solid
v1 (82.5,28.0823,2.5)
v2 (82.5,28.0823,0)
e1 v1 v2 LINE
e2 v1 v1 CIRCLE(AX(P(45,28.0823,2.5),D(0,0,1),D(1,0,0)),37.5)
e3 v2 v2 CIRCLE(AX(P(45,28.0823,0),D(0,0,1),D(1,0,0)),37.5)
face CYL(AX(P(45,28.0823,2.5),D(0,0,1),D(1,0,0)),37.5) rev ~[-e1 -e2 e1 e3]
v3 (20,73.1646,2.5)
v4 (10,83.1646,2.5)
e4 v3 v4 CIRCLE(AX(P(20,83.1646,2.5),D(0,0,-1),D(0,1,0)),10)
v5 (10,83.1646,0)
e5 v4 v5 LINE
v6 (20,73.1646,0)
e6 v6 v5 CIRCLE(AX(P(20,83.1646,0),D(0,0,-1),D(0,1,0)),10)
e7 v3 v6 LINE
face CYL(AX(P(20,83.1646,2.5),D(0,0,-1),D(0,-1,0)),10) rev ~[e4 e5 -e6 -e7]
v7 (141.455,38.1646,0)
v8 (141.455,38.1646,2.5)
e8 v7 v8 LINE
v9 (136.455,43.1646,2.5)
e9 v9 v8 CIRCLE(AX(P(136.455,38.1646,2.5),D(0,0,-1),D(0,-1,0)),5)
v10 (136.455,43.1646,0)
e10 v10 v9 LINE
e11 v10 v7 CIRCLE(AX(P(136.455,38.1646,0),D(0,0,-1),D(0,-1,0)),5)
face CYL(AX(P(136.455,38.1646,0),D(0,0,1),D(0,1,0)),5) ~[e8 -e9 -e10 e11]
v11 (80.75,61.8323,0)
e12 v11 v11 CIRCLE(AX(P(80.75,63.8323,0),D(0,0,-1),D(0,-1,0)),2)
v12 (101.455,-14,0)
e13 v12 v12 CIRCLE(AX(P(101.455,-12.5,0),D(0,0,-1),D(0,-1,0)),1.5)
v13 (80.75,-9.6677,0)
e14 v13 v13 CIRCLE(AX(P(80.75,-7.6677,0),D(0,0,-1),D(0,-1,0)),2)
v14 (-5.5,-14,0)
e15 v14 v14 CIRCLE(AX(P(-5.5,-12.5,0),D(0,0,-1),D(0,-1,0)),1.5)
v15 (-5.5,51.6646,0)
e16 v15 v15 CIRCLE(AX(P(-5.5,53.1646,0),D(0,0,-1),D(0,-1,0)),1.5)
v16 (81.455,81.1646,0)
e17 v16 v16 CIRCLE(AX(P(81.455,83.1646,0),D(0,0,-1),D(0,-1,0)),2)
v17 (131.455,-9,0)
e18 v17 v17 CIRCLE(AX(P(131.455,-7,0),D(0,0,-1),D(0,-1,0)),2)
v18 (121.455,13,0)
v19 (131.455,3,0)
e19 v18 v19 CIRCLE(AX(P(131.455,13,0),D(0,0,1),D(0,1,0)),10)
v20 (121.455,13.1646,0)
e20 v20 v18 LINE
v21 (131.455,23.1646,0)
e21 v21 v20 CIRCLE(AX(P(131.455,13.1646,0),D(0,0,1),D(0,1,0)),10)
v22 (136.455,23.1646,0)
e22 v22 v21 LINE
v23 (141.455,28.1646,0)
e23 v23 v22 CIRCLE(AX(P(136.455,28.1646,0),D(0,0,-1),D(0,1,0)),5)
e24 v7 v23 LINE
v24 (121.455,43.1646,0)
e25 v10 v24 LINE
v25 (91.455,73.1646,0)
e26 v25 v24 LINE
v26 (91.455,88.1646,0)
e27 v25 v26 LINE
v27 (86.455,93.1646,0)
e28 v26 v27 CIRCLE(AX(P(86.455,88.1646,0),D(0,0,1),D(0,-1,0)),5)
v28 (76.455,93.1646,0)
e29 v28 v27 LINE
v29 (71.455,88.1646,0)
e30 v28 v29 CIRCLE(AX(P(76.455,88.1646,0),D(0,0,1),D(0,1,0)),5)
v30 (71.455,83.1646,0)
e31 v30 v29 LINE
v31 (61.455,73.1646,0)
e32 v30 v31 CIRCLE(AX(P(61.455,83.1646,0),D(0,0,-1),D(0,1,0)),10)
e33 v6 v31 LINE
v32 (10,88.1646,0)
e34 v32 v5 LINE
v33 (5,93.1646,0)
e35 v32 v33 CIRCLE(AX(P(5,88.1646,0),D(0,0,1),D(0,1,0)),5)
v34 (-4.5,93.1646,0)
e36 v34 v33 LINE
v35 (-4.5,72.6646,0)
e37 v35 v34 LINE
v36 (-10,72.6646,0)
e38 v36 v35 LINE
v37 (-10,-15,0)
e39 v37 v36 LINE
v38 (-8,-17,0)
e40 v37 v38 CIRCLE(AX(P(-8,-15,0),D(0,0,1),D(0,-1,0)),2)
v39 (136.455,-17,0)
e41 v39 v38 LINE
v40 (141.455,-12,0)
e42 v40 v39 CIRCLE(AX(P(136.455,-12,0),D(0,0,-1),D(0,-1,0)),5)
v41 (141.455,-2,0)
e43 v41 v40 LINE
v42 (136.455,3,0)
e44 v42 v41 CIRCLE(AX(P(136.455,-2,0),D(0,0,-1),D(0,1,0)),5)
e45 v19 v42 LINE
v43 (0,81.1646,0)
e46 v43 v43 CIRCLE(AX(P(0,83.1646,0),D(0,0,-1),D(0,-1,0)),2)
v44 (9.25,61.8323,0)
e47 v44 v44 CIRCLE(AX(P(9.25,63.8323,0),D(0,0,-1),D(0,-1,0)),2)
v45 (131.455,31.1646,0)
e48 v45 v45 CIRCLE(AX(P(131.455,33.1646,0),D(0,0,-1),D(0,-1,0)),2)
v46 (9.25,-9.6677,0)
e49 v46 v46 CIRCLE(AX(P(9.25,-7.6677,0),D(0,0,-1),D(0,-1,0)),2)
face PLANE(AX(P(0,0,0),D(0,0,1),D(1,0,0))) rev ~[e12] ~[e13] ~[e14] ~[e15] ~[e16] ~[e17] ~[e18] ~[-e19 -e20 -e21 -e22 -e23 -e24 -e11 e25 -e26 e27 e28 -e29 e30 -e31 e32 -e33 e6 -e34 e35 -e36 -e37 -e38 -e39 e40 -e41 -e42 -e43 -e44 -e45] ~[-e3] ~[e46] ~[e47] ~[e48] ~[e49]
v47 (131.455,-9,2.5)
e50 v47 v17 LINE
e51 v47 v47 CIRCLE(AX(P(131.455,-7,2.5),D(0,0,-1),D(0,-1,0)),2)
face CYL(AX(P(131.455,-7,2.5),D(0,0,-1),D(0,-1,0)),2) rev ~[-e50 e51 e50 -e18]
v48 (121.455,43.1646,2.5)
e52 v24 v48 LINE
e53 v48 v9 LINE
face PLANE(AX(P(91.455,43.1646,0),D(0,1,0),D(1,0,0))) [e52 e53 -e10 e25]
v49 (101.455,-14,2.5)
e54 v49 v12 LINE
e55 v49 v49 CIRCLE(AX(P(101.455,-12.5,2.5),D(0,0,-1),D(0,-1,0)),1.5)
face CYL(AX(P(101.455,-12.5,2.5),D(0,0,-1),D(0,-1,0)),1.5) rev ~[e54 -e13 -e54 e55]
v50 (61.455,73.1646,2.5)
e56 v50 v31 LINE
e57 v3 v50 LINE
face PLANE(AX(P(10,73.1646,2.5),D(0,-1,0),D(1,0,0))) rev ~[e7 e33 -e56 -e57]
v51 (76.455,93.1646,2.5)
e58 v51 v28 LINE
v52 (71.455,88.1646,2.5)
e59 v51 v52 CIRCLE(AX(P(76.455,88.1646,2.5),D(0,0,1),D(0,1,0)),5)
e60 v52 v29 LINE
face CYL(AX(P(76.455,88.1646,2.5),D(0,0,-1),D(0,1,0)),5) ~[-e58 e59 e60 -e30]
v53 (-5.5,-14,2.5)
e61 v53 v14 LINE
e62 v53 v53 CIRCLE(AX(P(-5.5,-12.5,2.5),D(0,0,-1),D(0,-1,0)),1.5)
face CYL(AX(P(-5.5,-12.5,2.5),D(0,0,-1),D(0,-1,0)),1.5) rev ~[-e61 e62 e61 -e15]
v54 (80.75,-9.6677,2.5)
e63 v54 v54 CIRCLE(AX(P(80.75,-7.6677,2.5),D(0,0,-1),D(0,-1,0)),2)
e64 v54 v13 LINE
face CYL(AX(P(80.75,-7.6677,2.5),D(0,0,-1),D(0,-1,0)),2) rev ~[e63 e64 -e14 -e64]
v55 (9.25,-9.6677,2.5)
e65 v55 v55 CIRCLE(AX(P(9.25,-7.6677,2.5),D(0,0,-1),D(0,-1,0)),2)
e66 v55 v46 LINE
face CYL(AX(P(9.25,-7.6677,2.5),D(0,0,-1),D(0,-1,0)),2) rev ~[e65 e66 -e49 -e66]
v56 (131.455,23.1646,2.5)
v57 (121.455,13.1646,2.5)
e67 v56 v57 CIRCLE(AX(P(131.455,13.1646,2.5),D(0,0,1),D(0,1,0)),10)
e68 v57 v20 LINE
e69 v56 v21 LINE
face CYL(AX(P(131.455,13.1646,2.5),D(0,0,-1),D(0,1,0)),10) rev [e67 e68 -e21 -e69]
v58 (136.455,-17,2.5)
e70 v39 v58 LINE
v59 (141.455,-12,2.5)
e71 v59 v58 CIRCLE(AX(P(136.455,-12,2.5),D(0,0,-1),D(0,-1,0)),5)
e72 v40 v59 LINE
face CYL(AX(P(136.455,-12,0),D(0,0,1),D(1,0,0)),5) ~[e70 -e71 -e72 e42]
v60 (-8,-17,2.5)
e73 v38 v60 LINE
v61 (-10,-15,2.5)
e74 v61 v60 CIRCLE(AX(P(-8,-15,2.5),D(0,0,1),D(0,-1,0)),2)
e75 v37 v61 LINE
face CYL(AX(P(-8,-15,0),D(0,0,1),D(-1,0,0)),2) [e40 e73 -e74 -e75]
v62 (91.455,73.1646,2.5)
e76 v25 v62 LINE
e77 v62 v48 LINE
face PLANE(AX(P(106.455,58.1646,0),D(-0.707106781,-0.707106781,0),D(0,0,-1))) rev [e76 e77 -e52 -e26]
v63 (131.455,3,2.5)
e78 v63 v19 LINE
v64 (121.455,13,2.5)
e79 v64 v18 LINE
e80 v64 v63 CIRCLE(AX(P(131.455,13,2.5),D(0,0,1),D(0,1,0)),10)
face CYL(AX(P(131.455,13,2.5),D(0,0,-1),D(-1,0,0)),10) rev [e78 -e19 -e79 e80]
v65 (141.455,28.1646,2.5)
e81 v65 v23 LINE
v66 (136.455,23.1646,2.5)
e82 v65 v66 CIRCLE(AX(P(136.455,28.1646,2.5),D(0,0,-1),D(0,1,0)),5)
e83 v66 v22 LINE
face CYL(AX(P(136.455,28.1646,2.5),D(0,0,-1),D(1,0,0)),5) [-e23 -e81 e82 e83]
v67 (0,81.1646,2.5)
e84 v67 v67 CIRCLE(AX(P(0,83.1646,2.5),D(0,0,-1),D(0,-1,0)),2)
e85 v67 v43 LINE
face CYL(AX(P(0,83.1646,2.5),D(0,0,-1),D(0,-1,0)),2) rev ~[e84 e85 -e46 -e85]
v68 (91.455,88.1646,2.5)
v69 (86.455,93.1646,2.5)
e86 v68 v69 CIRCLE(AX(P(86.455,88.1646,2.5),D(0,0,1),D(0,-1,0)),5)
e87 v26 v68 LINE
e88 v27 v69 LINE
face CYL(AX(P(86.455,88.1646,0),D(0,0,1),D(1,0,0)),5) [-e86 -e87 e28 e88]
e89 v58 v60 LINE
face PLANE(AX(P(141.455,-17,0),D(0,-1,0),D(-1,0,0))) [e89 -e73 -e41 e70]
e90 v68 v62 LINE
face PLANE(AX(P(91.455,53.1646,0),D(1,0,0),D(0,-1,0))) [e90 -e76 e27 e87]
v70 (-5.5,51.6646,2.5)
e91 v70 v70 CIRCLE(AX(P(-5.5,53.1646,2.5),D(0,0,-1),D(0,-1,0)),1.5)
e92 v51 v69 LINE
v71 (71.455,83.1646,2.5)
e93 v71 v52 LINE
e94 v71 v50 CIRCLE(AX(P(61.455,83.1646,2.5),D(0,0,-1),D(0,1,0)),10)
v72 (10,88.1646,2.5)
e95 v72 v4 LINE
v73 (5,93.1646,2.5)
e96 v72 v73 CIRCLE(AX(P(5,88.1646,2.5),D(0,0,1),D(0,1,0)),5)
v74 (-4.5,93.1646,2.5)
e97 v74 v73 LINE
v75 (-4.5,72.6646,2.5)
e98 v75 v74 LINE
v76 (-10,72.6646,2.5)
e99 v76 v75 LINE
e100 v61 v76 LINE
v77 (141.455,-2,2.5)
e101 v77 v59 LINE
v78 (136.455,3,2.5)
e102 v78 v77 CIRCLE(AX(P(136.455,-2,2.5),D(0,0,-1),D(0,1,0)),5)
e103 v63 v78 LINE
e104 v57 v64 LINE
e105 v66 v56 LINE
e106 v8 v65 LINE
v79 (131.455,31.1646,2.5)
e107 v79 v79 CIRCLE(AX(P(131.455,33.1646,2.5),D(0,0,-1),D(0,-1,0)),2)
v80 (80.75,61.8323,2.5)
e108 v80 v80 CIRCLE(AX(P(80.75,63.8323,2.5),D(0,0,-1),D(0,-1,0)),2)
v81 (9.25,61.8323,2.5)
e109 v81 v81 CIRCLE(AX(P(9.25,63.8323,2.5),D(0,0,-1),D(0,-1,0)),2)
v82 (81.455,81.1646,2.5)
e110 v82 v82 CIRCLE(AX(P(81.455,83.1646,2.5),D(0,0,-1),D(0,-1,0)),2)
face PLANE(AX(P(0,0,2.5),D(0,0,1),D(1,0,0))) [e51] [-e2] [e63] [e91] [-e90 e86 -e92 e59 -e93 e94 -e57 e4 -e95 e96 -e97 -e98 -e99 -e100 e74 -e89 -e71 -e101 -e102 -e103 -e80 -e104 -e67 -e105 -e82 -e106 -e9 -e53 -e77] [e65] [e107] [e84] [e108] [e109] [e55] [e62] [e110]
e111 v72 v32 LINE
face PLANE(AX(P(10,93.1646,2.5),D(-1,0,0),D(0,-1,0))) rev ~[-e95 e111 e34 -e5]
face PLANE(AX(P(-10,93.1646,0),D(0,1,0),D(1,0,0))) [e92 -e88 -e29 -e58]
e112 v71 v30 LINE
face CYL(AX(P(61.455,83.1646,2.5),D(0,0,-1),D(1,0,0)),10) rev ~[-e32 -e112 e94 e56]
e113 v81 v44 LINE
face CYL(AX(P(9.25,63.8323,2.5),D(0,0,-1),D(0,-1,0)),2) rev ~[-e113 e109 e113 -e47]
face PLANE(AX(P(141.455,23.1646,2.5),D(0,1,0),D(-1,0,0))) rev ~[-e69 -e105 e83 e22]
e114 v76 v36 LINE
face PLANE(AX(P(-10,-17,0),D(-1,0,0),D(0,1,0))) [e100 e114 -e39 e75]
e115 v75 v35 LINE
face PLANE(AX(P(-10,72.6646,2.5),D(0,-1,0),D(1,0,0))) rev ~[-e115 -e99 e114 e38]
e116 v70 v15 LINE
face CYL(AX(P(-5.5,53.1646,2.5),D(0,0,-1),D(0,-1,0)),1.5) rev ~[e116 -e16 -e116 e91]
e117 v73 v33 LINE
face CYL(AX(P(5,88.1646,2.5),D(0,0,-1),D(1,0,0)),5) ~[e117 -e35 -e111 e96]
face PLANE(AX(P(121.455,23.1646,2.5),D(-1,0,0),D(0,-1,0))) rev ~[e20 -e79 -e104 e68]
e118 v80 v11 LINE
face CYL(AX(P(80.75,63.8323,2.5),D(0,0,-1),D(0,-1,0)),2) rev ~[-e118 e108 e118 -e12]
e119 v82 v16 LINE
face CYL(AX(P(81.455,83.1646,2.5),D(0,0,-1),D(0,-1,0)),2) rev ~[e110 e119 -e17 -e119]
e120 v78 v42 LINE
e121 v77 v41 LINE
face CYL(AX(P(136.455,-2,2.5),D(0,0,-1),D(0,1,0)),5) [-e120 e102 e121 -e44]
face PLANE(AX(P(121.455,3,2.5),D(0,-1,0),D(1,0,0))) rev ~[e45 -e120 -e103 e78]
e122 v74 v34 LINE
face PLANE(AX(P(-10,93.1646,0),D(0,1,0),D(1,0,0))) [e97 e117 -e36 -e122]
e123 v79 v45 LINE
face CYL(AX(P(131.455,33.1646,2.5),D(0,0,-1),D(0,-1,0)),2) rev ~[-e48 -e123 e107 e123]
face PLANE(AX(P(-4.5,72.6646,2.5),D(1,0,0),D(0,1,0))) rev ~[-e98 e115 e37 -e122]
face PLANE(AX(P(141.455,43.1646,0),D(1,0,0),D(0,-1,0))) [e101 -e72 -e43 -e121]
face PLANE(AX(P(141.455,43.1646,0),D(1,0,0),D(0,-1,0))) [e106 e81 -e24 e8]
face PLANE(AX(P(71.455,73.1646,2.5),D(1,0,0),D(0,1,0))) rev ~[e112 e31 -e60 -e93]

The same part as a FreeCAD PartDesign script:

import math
import FreeCAD as App
import Part
import Sketcher

V = App.Vector
Q = App.Units.Quantity


def edges_at(feature, points):
    """Names of the edges that pass closest to the given points."""
    edges = feature.Shape.Edges
    near = lambda p: min(range(len(edges)), key=lambda i: edges[i].distToShape(Part.Vertex(*p))[0])
    return sorted({f"Edge{near(p) + 1}" for p in points})

doc = App.newDocument("Part")
body = doc.addObject("PartDesign::Body", "Body")

sketch1 = body.newObject("Sketcher::SketchObject", "Sketch")
sketch1.AttachmentSupport = (doc.getObject("XY_Plane"), [""])
sketch1.MapMode = "FlatFace"
sketch1.addGeometry(Part.LineSegment(V(91, 43, 0), V(91, 93, 0)), False)
sketch1.addGeometry(Part.LineSegment(V(91, 93, 0), V(-10, 93, 0)), False)
sketch1.addGeometry(Part.LineSegment(V(-10, 93, 0), V(-10, -17, 0)), False)
sketch1.addGeometry(Part.LineSegment(V(-10, -17, 0), V(141, -17, 0)), False)
sketch1.addGeometry(Part.LineSegment(V(141, -17, 0), V(141, 43, 0)), False)
sketch1.addGeometry(Part.LineSegment(V(141, 43, 0), V(91, 43, 0)), False)
sketch1.addConstraint(Sketcher.Constraint("Coincident", 0, 2, 1, 1))
sketch1.addConstraint(Sketcher.Constraint("Coincident", 1, 2, 2, 1))
sketch1.addConstraint(Sketcher.Constraint("Coincident", 2, 2, 3, 1))
sketch1.addConstraint(Sketcher.Constraint("Coincident", 3, 2, 4, 1))
sketch1.addConstraint(Sketcher.Constraint("Coincident", 4, 2, 5, 1))
sketch1.addConstraint(Sketcher.Constraint("Coincident", 5, 2, 0, 1))
sketch1.addConstraint(Sketcher.Constraint("Vertical", 0))
sketch1.addConstraint(Sketcher.Constraint("Horizontal", 1))
sketch1.addConstraint(Sketcher.Constraint("Vertical", 2))
sketch1.addConstraint(Sketcher.Constraint("Horizontal", 3))
sketch1.addConstraint(Sketcher.Constraint("Vertical", 4))
sketch1.addConstraint(Sketcher.Constraint("Horizontal", 5))
sketch1.addConstraint(Sketcher.Constraint("Equal", 5, 0))
sketch1.addConstraint(Sketcher.Constraint("DistanceX", 5, 2, 5, 1, Q("50 mm")))
sketch1.addConstraint(Sketcher.Constraint("DistanceX", 1, 2, -1, 1, Q("10 mm")))
sketch1.addConstraint(Sketcher.Constraint("DistanceY", 2, 2, -1, 1, Q("17 mm")))
sketch1.addConstraint(Sketcher.Constraint("DistanceX", 1, 2, 1, 1, Q("101.455 mm")))
sketch1.addConstraint(Sketcher.Constraint("DistanceY", 2, 2, 2, 1, Q("110.1646 mm")))
pad1 = body.newObject("PartDesign::Pad", "Pad")
pad1.Profile = sketch1
pad1.Length = 2.5
doc.recompute()

fillet = body.newObject("PartDesign::Fillet", "Fillet")
fillet.Base = (pad1, edges_at(pad1, [
    (-10, 93.165, 1.25),
    (91.455, 93.165, 1.25),
    (141.455, 43.165, 1.25),
    (141.455, -17, 1.25),
]))
fillet.Radius = 5

sketch2 = body.newObject("Sketcher::SketchObject", "Sketch001")
sketch2.AttachmentSupport = (doc.getObject("XY_Plane"), [""])
sketch2.MapMode = "FlatFace"
sketch2.AttachmentOffset = App.Placement(V(0, 0, 2.5), App.Rotation())
sketch2.addGeometry(Part.Circle(V(131.5, -7, 0), V(0, 0, 1), 2), False)
sketch2.addGeometry(Part.Circle(V(131.5, 33.2, 0), V(0, 0, 1), 2), False)
sketch2.addGeometry(Part.Circle(V(81.5, 83.2, 0), V(0, 0, 1), 2), False)
sketch2.addGeometry(Part.Circle(V(0, 83.2, 0), V(0, 0, 1), 2), False)
sketch2.addConstraint(Sketcher.Constraint("Equal", 0, 1))
sketch2.addConstraint(Sketcher.Constraint("Equal", 1, 2))
sketch2.addConstraint(Sketcher.Constraint("Equal", 2, 3))
sketch2.addConstraint(Sketcher.Constraint("PointOnObject", 3, 3, -2))
sketch2.addConstraint(Sketcher.Constraint("Horizontal", 2, 3, 3, 3))
sketch2.addConstraint(Sketcher.Constraint("Vertical", 0, 3, 1, 3))
sketch2.addConstraint(Sketcher.Constraint("Diameter", 0, Q("4 mm")))
sketch2.addConstraint(Sketcher.Constraint("DistanceY", 0, 3, -1, 1, Q("7 mm")))
sketch2.addConstraint(Sketcher.Constraint("DistanceX", 2, 3, 1, 3, Q("50 mm")))
sketch2.addConstraint(Sketcher.Constraint("DistanceY", 1, 3, 2, 3, Q("50 mm")))
sketch2.addConstraint(Sketcher.Constraint("DistanceX", -1, 1, 0, 3, Q("131.455 mm")))
sketch2.addConstraint(Sketcher.Constraint("DistanceY", -1, 1, 1, 3, Q("33.1646 mm")))
doc.recompute()
hole = body.newObject("PartDesign::Hole", "Hole")
hole.Profile = sketch2
hole.ThreadType = "None"
hole.Diameter = 4
hole.DepthType = "ThroughAll"
doc.recompute()

fillet2 = body.newObject("PartDesign::Fillet", "Fillet001")
fillet2.Base = (hole, edges_at(hole, [(-10, -17, 1.25)]))
fillet2.Radius = 2

sketch3 = body.newObject("Sketcher::SketchObject", "Sketch002")
sketch3.AttachmentSupport = (doc.getObject("XY_Plane"), [""])
sketch3.MapMode = "FlatFace"
sketch3.AttachmentOffset = App.Placement(V(0, 0, 2.5), App.Rotation())
sketch3.addGeometry(Part.Circle(V(-5.5, 53.2, 0), V(0, 0, 1), 1.5), False)
sketch3.addGeometry(Part.Circle(V(-5.5, -12.5, 0), V(0, 0, 1), 1.5), False)
sketch3.addGeometry(Part.Circle(V(101.5, -12.5, 0), V(0, 0, 1), 1.5), False)
sketch3.addConstraint(Sketcher.Constraint("Equal", 0, 1))
sketch3.addConstraint(Sketcher.Constraint("Equal", 1, 2))
sketch3.addConstraint(Sketcher.Constraint("Horizontal", 1, 3, 2, 3))
sketch3.addConstraint(Sketcher.Constraint("Vertical", 0, 3, 1, 3))
sketch3.addConstraint(Sketcher.Constraint("Diameter", 0, Q("3 mm")))
sketch3.addConstraint(Sketcher.Constraint("DistanceX", 0, 3, -1, 1, Q("5.5 mm")))
sketch3.addConstraint(Sketcher.Constraint("DistanceY", 1, 3, -1, 1, Q("12.5 mm")))
sketch3.addConstraint(Sketcher.Constraint("DistanceX", -1, 1, 2, 3, Q("101.455 mm")))
sketch3.addConstraint(Sketcher.Constraint("DistanceY", -1, 1, 0, 3, Q("53.1646 mm")))
doc.recompute()
hole2 = body.newObject("PartDesign::Hole", "Hole001")
hole2.Profile = sketch3
hole2.ThreadType = "None"
hole2.Diameter = 3
hole2.DepthType = "ThroughAll"
doc.recompute()

chamfer = body.newObject("PartDesign::Chamfer", "Chamfer")
chamfer.Base = (hole2, edges_at(hole2, [(91.455, 43.165, 1.25)]))
chamfer.Size = 30

sketch4 = body.newObject("Sketcher::SketchObject", "Sketch003")
sketch4.AttachmentSupport = (doc.getObject("XY_Plane"), [""])
sketch4.MapMode = "FlatFace"
sketch4.AttachmentOffset = App.Placement(V(0, 0, 2.5), App.Rotation())
sketch4.addGeometry(Part.LineSegment(V(71, 93, 0), V(10, 93, 0)), False)
sketch4.addGeometry(Part.LineSegment(V(10, 93, 0), V(10, 73, 0)), False)
sketch4.addGeometry(Part.LineSegment(V(10, 73, 0), V(71, 73, 0)), False)
sketch4.addGeometry(Part.LineSegment(V(71, 73, 0), V(71, 93, 0)), False)
sketch4.addGeometry(Part.LineSegment(V(121, 3, 0), V(141, 3, 0)), False)
sketch4.addGeometry(Part.LineSegment(V(141, 3, 0), V(141, 23, 0)), False)
sketch4.addGeometry(Part.LineSegment(V(141, 23, 0), V(121, 23, 0)), False)
sketch4.addGeometry(Part.LineSegment(V(121, 23, 0), V(121, 3, 0)), False)
sketch4.addGeometry(Part.Circle(V(45, 28, 0), V(0, 0, 1), 38), False)
sketch4.addConstraint(Sketcher.Constraint("Coincident", 0, 2, 1, 1))
sketch4.addConstraint(Sketcher.Constraint("Coincident", 1, 2, 2, 1))
sketch4.addConstraint(Sketcher.Constraint("Coincident", 2, 2, 3, 1))
sketch4.addConstraint(Sketcher.Constraint("Coincident", 3, 2, 0, 1))
sketch4.addConstraint(Sketcher.Constraint("Coincident", 4, 2, 5, 1))
sketch4.addConstraint(Sketcher.Constraint("Coincident", 5, 2, 6, 1))
sketch4.addConstraint(Sketcher.Constraint("Coincident", 6, 2, 7, 1))
sketch4.addConstraint(Sketcher.Constraint("Coincident", 7, 2, 4, 1))
sketch4.addConstraint(Sketcher.Constraint("Horizontal", 0))
sketch4.addConstraint(Sketcher.Constraint("Vertical", 1))
sketch4.addConstraint(Sketcher.Constraint("Horizontal", 2))
sketch4.addConstraint(Sketcher.Constraint("Vertical", 3))
sketch4.addConstraint(Sketcher.Constraint("Horizontal", 4))
sketch4.addConstraint(Sketcher.Constraint("Vertical", 5))
sketch4.addConstraint(Sketcher.Constraint("Horizontal", 6))
sketch4.addConstraint(Sketcher.Constraint("Vertical", 7))
sketch4.addConstraint(Sketcher.Constraint("Equal", 6, 1))
sketch4.addConstraint(Sketcher.Constraint("Diameter", 8, Q("75 mm")))
sketch4.addConstraint(Sketcher.Constraint("DistanceX", 4, 1, 4, 2, Q("20 mm")))
sketch4.addConstraint(Sketcher.Constraint("DistanceX", -1, 1, 0, 2, Q("10 mm")))
sketch4.addConstraint(Sketcher.Constraint("DistanceX", -1, 1, 8, 3, Q("45 mm")))
sketch4.addConstraint(Sketcher.Constraint("DistanceY", -1, 1, 4, 2, Q("3 mm")))
sketch4.addConstraint(Sketcher.Constraint("DistanceX", 2, 2, 4, 2, Q("70 mm")))
sketch4.addConstraint(Sketcher.Constraint("DistanceY", 5, 2, 2, 2, Q("50 mm")))
sketch4.addConstraint(Sketcher.Constraint("DistanceY", 8, 3, 1, 2, Q("45.0823 mm")))
sketch4.addConstraint(Sketcher.Constraint("DistanceY", 4, 2, 3, 2, Q("90.1646 mm")))
sketch4.addConstraint(Sketcher.Constraint("DistanceX", 0, 2, 0, 1, Q("61.455 mm")))
pocket1 = body.newObject("PartDesign::Pocket", "Pocket")
pocket1.Profile = sketch4
pocket1.Type = "ThroughAll"

sketch5 = body.newObject("Sketcher::SketchObject", "Sketch004")
sketch5.AttachmentSupport = (doc.getObject("XY_Plane"), [""])
sketch5.MapMode = "FlatFace"
sketch5.AttachmentOffset = App.Placement(V(0, 0, 2.5), App.Rotation())
sketch5.addGeometry(Part.Circle(V(9.2, 63.8, 0), V(0, 0, 1), 2), False)
sketch5.addGeometry(Part.Circle(V(80.8, 63.8, 0), V(0, 0, 1), 2), False)
sketch5.addGeometry(Part.Circle(V(80.8, -7.7, 0), V(0, 0, 1), 2), False)
sketch5.addGeometry(Part.Circle(V(9.2, -7.7, 0), V(0, 0, 1), 2), False)
sketch5.addConstraint(Sketcher.Constraint("Equal", 0, 1))
sketch5.addConstraint(Sketcher.Constraint("Equal", 1, 2))
sketch5.addConstraint(Sketcher.Constraint("Equal", 2, 3))
sketch5.addConstraint(Sketcher.Constraint("Horizontal", 0, 3, 1, 3))
sketch5.addConstraint(Sketcher.Constraint("Horizontal", 2, 3, 3, 3))
sketch5.addConstraint(Sketcher.Constraint("Vertical", 1, 3, 2, 3))
sketch5.addConstraint(Sketcher.Constraint("Vertical", 0, 3, 3, 3))
sketch5.addConstraint(Sketcher.Constraint("Diameter", 0, Q("4 mm")))
sketch5.addConstraint(Sketcher.Constraint("DistanceX", 0, 3, 1, 3, Q("71.5 mm")))
sketch5.addConstraint(Sketcher.Constraint("DistanceY", 2, 3, 1, 3, Q("71.5 mm")))
sketch5.addConstraint(Sketcher.Constraint("DistanceX", -1, 1, 0, 3, Q("9.25 mm")))
sketch5.addConstraint(Sketcher.Constraint("DistanceY", -1, 1, 0, 3, Q("63.8323 mm")))
doc.recompute()
hole3 = body.newObject("PartDesign::Hole", "Hole002")
hole3.Profile = sketch5
hole3.ThreadType = "None"
hole3.Diameter = 4
hole3.DepthType = "ThroughAll"
doc.recompute()

fillet3 = body.newObject("PartDesign::Fillet", "Fillet002")
fillet3.Base = (hole3, edges_at(hole3, [
    (71.455, 73.165, 1.25),
    (10, 73.165, 1.25),
    (121.455, 23.165, 1.25),
    (121.455, 3, 1.25),
]))
fillet3.Radius = 10
doc.recompute()

fillet4 = body.newObject("PartDesign::Fillet", "Fillet003")
fillet4.Base = (fillet3, edges_at(fillet3, [
    (141.455, 23.165, 1.25),
    (141.455, 3, 1.25),
    (71.455, 93.165, 1.25),
    (10, 93.165, 1.25),
]))
fillet4.Radius = 5

sketch6 = body.newObject("Sketcher::SketchObject", "Sketch005")
sketch6.AttachmentSupport = (doc.getObject("XY_Plane"), [""])
sketch6.MapMode = "FlatFace"
sketch6.AttachmentOffset = App.Placement(V(0, 0, 2.5), App.Rotation())
sketch6.addGeometry(Part.LineSegment(V(-4.5, 72.7, 0), V(-4.5, 93.2, 0)), False)
sketch6.addGeometry(Part.LineSegment(V(-4.5, 93.2, 0), V(-5, 93.2, 0)), False)
sketch6.addGeometry(Part.ArcOfCircle(Part.Circle(V(-5, 88.2, 0), V(0, 0, 1), 5), math.radians(90), math.radians(180)), False)
sketch6.addGeometry(Part.LineSegment(V(-10, 88.2, 0), V(-10, 72.7, 0)), False)
sketch6.addGeometry(Part.LineSegment(V(-10, 72.7, 0), V(-4.5, 72.7, 0)), False)
sketch6.addConstraint(Sketcher.Constraint("Coincident", 0, 2, 1, 1))
sketch6.addConstraint(Sketcher.Constraint("Tangent", 1, 2, 2, 1))
sketch6.addConstraint(Sketcher.Constraint("Tangent", 2, 2, 3, 1))
sketch6.addConstraint(Sketcher.Constraint("Coincident", 3, 2, 4, 1))
sketch6.addConstraint(Sketcher.Constraint("Coincident", 4, 2, 0, 1))
sketch6.addConstraint(Sketcher.Constraint("Vertical", 0))
sketch6.addConstraint(Sketcher.Constraint("Horizontal", 1))
sketch6.addConstraint(Sketcher.Constraint("Vertical", 3))
sketch6.addConstraint(Sketcher.Constraint("Horizontal", 4))
sketch6.addConstraint(Sketcher.Constraint("DistanceX", 4, 1, 4, 2, Q("5.5 mm")))
sketch6.addConstraint(Sketcher.Constraint("DistanceY", 0, 1, 0, 2, Q("20.5 mm")))
sketch6.addConstraint(Sketcher.Constraint("Radius", 2, Q("5 mm")))
sketch6.addConstraint(Sketcher.Constraint("DistanceX", 2, 3, -1, 1, Q("5 mm")))
sketch6.addConstraint(Sketcher.Constraint("DistanceY", -1, 1, 2, 3, Q("88.1646 mm")))
pocket2 = body.newObject("PartDesign::Pocket", "Pocket001")
pocket2.Profile = sketch6
pocket2.Type = "ThroughAll"

doc.recompute()
